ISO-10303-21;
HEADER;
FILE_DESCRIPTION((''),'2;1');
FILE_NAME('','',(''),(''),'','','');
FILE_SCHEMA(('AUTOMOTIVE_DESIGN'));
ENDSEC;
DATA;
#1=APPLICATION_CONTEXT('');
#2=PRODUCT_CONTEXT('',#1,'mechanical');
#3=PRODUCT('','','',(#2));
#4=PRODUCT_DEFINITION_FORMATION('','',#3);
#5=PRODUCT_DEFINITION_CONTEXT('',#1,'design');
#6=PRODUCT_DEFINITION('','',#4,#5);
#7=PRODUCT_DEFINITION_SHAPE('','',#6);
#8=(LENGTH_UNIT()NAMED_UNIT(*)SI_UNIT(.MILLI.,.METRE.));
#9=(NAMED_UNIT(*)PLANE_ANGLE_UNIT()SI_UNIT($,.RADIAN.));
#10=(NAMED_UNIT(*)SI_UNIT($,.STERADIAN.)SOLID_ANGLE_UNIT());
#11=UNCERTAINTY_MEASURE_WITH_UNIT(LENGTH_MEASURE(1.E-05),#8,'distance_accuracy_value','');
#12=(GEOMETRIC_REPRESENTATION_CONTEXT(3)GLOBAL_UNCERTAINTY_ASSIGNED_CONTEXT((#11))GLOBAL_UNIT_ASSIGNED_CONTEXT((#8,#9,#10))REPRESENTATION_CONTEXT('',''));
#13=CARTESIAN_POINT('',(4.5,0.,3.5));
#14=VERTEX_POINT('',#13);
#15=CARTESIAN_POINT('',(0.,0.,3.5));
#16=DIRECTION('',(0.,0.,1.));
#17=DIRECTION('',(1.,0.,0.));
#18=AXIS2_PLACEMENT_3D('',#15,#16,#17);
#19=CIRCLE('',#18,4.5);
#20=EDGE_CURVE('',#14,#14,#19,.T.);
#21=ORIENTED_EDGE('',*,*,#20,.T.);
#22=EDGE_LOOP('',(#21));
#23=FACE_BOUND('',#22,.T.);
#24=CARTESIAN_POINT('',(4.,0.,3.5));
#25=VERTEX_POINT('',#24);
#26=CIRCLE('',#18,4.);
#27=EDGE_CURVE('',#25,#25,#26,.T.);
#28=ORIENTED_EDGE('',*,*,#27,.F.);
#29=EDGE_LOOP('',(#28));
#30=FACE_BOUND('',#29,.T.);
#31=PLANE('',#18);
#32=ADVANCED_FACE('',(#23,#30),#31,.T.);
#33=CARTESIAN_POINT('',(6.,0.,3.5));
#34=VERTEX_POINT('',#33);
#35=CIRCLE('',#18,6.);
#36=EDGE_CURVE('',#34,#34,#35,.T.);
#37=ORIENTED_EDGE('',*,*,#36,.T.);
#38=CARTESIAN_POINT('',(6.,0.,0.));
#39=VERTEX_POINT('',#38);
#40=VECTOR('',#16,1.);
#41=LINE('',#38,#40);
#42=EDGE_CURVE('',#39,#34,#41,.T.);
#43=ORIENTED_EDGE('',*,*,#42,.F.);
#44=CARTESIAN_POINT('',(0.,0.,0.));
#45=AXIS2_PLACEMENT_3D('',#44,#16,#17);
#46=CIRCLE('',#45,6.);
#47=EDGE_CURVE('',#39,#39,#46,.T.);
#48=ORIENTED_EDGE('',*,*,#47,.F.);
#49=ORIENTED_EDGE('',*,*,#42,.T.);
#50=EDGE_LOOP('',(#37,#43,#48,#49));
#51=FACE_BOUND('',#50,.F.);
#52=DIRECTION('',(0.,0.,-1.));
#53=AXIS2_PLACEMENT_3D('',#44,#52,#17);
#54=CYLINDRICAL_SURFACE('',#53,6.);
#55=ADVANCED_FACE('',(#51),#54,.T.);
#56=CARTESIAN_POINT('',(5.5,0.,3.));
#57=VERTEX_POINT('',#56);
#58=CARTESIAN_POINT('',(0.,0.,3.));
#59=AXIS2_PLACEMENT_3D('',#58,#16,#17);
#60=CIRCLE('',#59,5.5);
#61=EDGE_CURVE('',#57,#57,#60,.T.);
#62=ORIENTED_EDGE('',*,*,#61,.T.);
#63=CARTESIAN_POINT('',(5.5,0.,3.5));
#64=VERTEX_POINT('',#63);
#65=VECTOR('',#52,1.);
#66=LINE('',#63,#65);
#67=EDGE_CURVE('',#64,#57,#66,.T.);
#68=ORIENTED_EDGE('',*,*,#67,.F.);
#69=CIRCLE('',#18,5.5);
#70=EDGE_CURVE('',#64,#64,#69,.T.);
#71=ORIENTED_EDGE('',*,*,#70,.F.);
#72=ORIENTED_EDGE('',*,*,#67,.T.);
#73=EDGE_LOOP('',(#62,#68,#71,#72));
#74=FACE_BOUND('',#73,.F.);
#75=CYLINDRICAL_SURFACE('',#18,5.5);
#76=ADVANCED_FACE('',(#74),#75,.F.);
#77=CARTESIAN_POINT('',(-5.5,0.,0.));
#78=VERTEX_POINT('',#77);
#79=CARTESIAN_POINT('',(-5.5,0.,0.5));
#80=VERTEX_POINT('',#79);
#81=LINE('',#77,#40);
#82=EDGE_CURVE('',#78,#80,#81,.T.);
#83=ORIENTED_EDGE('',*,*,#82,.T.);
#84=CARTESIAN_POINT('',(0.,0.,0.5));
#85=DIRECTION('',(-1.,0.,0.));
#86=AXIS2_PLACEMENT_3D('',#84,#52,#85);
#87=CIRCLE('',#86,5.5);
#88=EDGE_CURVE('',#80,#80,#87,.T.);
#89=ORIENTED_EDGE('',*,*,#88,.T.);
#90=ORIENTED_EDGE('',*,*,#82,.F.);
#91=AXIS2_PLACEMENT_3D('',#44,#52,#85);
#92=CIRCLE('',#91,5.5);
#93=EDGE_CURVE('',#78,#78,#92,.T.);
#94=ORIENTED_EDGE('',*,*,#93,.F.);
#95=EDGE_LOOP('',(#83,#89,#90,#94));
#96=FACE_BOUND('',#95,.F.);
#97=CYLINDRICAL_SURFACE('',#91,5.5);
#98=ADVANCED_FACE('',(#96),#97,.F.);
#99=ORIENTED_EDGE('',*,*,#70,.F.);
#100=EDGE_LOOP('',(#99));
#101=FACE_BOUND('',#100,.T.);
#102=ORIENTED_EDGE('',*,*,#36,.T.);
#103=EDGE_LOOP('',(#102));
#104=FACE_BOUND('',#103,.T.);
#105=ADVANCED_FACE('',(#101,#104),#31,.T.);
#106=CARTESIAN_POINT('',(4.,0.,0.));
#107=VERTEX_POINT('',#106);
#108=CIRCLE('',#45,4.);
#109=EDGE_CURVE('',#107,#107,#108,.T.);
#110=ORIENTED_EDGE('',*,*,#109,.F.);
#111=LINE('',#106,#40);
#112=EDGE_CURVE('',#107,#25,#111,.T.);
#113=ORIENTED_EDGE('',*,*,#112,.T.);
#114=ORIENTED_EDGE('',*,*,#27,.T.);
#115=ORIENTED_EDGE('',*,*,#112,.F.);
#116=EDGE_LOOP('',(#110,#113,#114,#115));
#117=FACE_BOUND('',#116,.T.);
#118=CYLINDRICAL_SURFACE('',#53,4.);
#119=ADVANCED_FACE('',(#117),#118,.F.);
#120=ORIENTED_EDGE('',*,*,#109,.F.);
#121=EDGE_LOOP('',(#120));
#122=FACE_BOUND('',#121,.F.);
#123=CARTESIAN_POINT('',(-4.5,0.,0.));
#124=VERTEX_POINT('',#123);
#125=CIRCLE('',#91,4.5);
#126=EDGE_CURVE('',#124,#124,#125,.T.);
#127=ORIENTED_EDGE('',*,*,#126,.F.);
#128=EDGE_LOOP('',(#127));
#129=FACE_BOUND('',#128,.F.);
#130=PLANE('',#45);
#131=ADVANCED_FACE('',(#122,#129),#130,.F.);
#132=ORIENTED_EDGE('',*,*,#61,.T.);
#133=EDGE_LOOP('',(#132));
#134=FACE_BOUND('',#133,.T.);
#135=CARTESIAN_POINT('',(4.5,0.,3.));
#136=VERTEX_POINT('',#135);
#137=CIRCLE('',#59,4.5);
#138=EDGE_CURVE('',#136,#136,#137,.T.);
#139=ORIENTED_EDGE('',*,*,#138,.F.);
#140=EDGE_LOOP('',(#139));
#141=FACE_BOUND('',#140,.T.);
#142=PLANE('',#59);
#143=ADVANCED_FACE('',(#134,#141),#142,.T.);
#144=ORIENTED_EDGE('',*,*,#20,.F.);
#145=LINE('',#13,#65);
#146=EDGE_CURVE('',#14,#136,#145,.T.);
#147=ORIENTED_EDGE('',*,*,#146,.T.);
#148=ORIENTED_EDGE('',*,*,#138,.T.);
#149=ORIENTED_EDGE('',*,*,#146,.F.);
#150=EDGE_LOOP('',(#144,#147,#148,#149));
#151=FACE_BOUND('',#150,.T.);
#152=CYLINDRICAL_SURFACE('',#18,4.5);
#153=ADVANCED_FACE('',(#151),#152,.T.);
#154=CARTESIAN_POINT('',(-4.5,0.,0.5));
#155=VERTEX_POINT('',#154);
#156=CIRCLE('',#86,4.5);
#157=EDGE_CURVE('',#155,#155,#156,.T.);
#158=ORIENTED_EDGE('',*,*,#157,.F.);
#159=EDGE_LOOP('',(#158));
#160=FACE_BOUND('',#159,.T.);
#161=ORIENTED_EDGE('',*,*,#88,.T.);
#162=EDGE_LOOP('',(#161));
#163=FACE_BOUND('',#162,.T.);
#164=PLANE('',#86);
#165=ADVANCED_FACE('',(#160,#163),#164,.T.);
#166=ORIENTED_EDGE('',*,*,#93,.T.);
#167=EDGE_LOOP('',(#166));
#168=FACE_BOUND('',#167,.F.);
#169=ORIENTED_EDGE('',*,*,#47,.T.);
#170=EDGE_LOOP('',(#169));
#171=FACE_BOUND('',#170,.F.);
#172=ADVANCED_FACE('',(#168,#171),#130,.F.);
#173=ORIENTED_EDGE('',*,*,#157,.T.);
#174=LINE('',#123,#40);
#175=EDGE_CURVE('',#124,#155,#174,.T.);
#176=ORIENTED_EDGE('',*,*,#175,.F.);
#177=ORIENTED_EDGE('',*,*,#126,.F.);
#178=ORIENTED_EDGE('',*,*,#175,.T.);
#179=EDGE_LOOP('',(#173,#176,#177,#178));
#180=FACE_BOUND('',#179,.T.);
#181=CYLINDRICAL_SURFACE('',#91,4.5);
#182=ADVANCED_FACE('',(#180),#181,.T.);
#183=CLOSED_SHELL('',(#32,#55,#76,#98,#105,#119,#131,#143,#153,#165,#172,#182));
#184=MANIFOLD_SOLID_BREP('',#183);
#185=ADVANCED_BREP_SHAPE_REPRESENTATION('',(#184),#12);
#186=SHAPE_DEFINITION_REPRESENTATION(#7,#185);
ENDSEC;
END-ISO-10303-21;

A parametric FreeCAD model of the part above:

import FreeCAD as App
import Part
import Sketcher
from FreeCAD import Vector

doc = App.newDocument("Part")
body = doc.addObject("PartDesign::Body", "Body")

sketch1 = body.newObject("Sketcher::SketchObject", "Sketch")
sketch1.AttachmentSupport = (doc.getObject("XY_Plane"), [""])
sketch1.MapMode = "FlatFace"
sketch1.addGeometry(Part.Circle(Vector(0, 0, 0), Vector(0, 0, 1), 6), False)
sketch1.addGeometry(Part.Circle(Vector(0, 0, 0), Vector(0, 0, 1), 4), False)
sketch1.addConstraint(Sketcher.Constraint("Coincident", 0, 3, -1, 1))
sketch1.addConstraint(Sketcher.Constraint("Coincident", 1, 3, -1, 1))
sketch1.addConstraint(Sketcher.Constraint("Diameter", 0, 12.0))
sketch1.addConstraint(Sketcher.Constraint("Diameter", 1, 8.0))
pad1 = body.newObject("PartDesign::Pad", "Pad")
pad1.Profile = sketch1
pad1.Length = 3.5

sketch2 = body.newObject("Sketcher::SketchObject", "Sketch001")
sketch2.AttachmentSupport = (doc.getObject("XY_Plane"), [""])
sketch2.MapMode = "FlatFace"
sketch2.AttachmentOffset = App.Placement(Vector(0, 0, 3.5), App.Rotation())
sketch2.addGeometry(Part.Circle(Vector(0, 0, 0), Vector(0, 0, 1), 5.5), False)
sketch2.addGeometry(Part.Circle(Vector(0, 0, 0), Vector(0, 0, 1), 4.5), False)
sketch2.addConstraint(Sketcher.Constraint("Coincident", 0, 3, -1, 1))
sketch2.addConstraint(Sketcher.Constraint("Coincident", 1, 3, -1, 1))
sketch2.addConstraint(Sketcher.Constraint("Diameter", 0, 11.0))
sketch2.addConstraint(Sketcher.Constraint("Diameter", 1, 9.0))
pocket1 = body.newObject("PartDesign::Pocket", "Pocket")
pocket1.Profile = sketch2
pocket1.Length = 0.5

sketch3 = body.newObject("Sketcher::SketchObject", "Sketch002")
sketch3.AttachmentSupport = (doc.getObject("XY_Plane"), [""])
sketch3.MapMode = "FlatFace"
sketch3.addGeometry(Part.Circle(Vector(0, 0, 0), Vector(0, 0, 1), 5.5), False)
sketch3.addGeometry(Part.Circle(Vector(0, 0, 0), Vector(0, 0, 1), 4.5), False)
sketch3.addConstraint(Sketcher.Constraint("Coincident", 0, 3, -1, 1))
sketch3.addConstraint(Sketcher.Constraint("Coincident", 1, 3, -1, 1))
sketch3.addConstraint(Sketcher.Constraint("Diameter", 0, 11.0))
sketch3.addConstraint(Sketcher.Constraint("Diameter", 1, 9.0))
pocket2 = body.newObject("PartDesign::Pocket", "Pocket001")
pocket2.Profile = sketch3
pocket2.Length = 0.5
pocket2.Reversed = True

doc.recompute()
